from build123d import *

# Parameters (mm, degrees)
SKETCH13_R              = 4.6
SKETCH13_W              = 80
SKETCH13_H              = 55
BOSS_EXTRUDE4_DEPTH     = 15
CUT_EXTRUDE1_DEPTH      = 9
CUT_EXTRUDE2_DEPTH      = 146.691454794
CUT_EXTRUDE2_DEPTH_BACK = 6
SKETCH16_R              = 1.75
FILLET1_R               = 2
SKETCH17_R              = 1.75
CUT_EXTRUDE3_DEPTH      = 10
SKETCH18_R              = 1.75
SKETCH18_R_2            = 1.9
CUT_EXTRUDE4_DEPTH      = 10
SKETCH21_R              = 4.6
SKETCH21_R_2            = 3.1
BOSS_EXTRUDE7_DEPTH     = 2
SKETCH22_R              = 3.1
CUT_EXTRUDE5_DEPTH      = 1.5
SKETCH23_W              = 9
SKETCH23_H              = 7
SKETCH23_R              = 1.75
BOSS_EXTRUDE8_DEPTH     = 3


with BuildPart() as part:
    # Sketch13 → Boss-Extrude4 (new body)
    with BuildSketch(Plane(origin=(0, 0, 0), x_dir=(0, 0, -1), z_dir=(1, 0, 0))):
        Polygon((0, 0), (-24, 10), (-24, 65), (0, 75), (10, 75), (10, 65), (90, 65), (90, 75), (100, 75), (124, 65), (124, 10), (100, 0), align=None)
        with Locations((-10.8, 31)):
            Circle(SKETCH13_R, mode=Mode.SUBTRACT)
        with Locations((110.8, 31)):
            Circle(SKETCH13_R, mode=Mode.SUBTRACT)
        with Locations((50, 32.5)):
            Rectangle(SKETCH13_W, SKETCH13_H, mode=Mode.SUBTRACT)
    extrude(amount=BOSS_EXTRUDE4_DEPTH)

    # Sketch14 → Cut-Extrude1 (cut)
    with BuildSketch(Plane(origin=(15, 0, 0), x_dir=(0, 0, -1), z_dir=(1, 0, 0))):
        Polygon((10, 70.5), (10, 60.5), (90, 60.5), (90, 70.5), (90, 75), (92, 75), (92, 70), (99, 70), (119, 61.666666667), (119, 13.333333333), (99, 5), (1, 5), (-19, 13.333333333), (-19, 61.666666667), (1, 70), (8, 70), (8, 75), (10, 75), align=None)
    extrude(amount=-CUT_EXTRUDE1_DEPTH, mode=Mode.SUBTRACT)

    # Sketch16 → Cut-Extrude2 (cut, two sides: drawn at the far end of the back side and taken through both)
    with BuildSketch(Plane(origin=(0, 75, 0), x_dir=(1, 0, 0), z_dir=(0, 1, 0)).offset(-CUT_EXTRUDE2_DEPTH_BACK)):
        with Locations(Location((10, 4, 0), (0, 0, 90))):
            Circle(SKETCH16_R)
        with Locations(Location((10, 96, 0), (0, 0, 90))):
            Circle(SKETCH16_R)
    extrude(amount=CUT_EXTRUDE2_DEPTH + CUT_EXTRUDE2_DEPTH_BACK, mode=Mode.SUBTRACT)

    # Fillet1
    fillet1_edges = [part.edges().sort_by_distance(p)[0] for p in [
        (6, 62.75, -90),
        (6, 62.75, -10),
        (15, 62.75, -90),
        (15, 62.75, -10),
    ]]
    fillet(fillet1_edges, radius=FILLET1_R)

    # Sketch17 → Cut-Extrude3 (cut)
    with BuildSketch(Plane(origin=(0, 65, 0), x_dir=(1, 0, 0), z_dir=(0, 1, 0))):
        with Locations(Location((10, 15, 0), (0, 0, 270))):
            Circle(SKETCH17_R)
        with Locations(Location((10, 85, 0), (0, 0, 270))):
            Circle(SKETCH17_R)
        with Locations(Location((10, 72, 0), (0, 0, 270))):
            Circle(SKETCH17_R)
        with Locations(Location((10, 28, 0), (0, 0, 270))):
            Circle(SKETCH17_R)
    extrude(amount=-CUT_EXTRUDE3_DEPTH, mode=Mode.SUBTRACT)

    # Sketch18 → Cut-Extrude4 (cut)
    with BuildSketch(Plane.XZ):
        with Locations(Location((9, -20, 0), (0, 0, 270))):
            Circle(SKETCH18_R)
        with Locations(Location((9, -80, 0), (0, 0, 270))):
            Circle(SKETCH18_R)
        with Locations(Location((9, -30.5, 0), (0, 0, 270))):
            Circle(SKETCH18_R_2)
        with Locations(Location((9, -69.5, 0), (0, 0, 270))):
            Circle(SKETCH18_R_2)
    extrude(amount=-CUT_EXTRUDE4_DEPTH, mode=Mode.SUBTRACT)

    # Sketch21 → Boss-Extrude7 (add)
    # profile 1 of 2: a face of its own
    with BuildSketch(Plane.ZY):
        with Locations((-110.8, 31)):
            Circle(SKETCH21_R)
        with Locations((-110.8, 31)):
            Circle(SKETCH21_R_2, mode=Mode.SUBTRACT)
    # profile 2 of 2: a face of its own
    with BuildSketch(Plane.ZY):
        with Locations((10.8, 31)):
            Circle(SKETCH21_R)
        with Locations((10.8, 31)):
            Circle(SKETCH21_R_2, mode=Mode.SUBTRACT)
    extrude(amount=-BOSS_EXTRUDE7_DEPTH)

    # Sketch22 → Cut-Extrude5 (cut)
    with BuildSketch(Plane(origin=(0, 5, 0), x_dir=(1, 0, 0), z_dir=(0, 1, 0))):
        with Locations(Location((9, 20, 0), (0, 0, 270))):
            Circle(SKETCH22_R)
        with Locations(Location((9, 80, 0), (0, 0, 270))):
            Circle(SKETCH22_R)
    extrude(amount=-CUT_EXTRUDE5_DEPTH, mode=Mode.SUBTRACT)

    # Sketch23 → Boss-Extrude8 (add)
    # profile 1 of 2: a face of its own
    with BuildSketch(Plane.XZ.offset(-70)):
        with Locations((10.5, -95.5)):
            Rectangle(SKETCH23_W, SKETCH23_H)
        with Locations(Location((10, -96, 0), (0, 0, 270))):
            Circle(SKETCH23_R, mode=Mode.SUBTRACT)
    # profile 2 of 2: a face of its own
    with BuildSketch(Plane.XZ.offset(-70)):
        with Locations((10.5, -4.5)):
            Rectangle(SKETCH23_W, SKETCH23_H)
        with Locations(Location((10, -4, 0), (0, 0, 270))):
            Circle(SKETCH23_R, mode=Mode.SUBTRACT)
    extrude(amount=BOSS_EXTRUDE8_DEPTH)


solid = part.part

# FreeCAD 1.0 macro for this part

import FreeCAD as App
import Part
import Sketcher
from FreeCAD import Vector


def edges_at(feature, points):
    """Names of the edges that pass closest to the given points."""
    edges = feature.Shape.Edges
    near = lambda p: min(range(len(edges)), key=lambda i: edges[i].distToShape(Part.Vertex(*p))[0])
    return sorted({f"Edge{near(p) + 1}" for p in points})

doc = App.newDocument("Part")
body = doc.addObject("PartDesign::Body", "Body")

sketch1 = doc.addObject("Sketcher::SketchObject", "Sketch")
body.addObject(sketch1)
sketch1.AttachmentSupport = (doc.YZ_Plane, [""])
sketch1.MapMode = "FlatFace"
sketch1.addGeometry([
    Part.LineSegment(Vector(10, 24, 0), Vector(0, 0, 0)),
    Part.LineSegment(Vector(0, 0, 0), Vector(0, -100, 0)),
    Part.LineSegment(Vector(0, -100, 0), Vector(10, -124, 0)),
    Part.LineSegment(Vector(10, -124, 0), Vector(65, -124, 0)),
    Part.LineSegment(Vector(65, -124, 0), Vector(75, -100, 0)),
    Part.LineSegment(Vector(75, -100, 0), Vector(75, -90, 0)),
    Part.LineSegment(Vector(75, -90, 0), Vector(65, -90, 0)),
    Part.LineSegment(Vector(65, -90, 0), Vector(65, -10, 0)),
    Part.LineSegment(Vector(65, -10, 0), Vector(75, -10, 0)),
    Part.LineSegment(Vector(75, -10, 0), Vector(75, 0, 0)),
    Part.LineSegment(Vector(75, 0, 0), Vector(65, 24, 0)),
    Part.LineSegment(Vector(65, 24, 0), Vector(10, 24, 0)),
    Part.Circle(Vector(31, -110.8, 0), Vector(0, 0, 1), 4.6),
    Part.Circle(Vector(31, 10.8, 0), Vector(0, 0, 1), 4.6),
    Part.LineSegment(Vector(5, -10, 0), Vector(60, -10, 0)),
    Part.LineSegment(Vector(60, -10, 0), Vector(60, -90, 0)),
    Part.LineSegment(Vector(60, -90, 0), Vector(5, -90, 0)),
    Part.LineSegment(Vector(5, -90, 0), Vector(5, -10, 0)),
], False)
sketch1.addConstraint([
    Sketcher.Constraint("Coincident", 0, 2, 1, 1),
    Sketcher.Constraint("Coincident", 1, 2, 2, 1),
    Sketcher.Constraint("Coincident", 2, 2, 3, 1),
    Sketcher.Constraint("Coincident", 3, 2, 4, 1),
    Sketcher.Constraint("Coincident", 4, 2, 5, 1),
    Sketcher.Constraint("Coincident", 5, 2, 6, 1),
    Sketcher.Constraint("Coincident", 6, 2, 7, 1),
    Sketcher.Constraint("Coincident", 7, 2, 8, 1),
    Sketcher.Constraint("Coincident", 8, 2, 9, 1),
    Sketcher.Constraint("Coincident", 9, 2, 10, 1),
    Sketcher.Constraint("Coincident", 10, 2, 11, 1),
    Sketcher.Constraint("Coincident", 11, 2, 0, 1),
    Sketcher.Constraint("Coincident", 14, 2, 15, 1),
    Sketcher.Constraint("Coincident", 15, 2, 16, 1),
    Sketcher.Constraint("Coincident", 16, 2, 17, 1),
    Sketcher.Constraint("Coincident", 17, 2, 14, 1),
    Sketcher.Constraint("Vertical", 1),
    Sketcher.Constraint("Horizontal", 3),
    Sketcher.Constraint("Vertical", 5),
    Sketcher.Constraint("Horizontal", 6),
    Sketcher.Constraint("Vertical", 7),
    Sketcher.Constraint("Horizontal", 8),
    Sketcher.Constraint("Vertical", 9),
    Sketcher.Constraint("Horizontal", 11),
    Sketcher.Constraint("Horizontal", 14),
    Sketcher.Constraint("Vertical", 15),
    Sketcher.Constraint("Horizontal", 16),
    Sketcher.Constraint("Vertical", 17),
    Sketcher.Constraint("Coincident", 0, 2, -1, 1),
    Sketcher.Constraint("Equal", 12, 13),
    Sketcher.Constraint("PointOnObject", 9, 2, -1),
    Sketcher.Constraint("Parallel", 0, 4),
    Sketcher.Constraint("Parallel", 2, 10),
    Sketcher.Constraint("Horizontal", 1, 2, 4, 2),
    Sketcher.Constraint("Horizontal", 8, 2, 14, 2),
    Sketcher.Constraint("Horizontal", 6, 2, 15, 2),
    Sketcher.Constraint("Vertical", 12, 3, 13, 3),
    Sketcher.Constraint("Vertical", 3, 2, 6, 2),
    Sketcher.Constraint("Vertical", 5, 2, 8, 2),
    Sketcher.Constraint("Vertical", 7, 2, 10, 2),
    Sketcher.Constraint("Vertical", 2, 2, 11, 2),
    Sketcher.Constraint("Equal", 11, 14),
    Sketcher.Constraint("Equal", 8, 5),
    Sketcher.Constraint("Equal", 5, 9),
    Sketcher.Constraint("Diameter", 12, 9.2),
    Sketcher.Constraint("DistanceX", 3, 1, 3, 2, 55.0),
    Sketcher.Constraint("DistanceX", 6, 2, 6, 1, 10.0),
    Sketcher.Constraint("DistanceY", 1, 2, 1, 1, 100.0),
    Sketcher.Constraint("Distance", 0, 26.0),
    Sketcher.Constraint("DistanceX", -1, 1, 12, 3, 31.0),
    Sketcher.Constraint("DistanceX", -1, 1, 14, 2, 60.0),
    Sketcher.Constraint("DistanceY", 12, 3, -1, 1, 110.8),
    Sketcher.Constraint("DistanceY", -1, 1, 13, 3, 10.8),
])
pad1 = doc.addObject("PartDesign::Pad", "Pad")
body.addObject(pad1)
pad1.Profile = sketch1
pad1.Length = 15

sketch2 = doc.addObject("Sketcher::SketchObject", "Sketch001")
body.addObject(sketch2)
sketch2.AttachmentSupport = (doc.YZ_Plane, [""])
sketch2.MapMode = "FlatFace"
sketch2.AttachmentOffset = App.Placement(Vector(0, 0, 15), App.Rotation())
sketch2.addGeometry([
    Part.LineSegment(Vector(60.5, -10, 0), Vector(75, -10, 0)),
    Part.LineSegment(Vector(75, -10, 0), Vector(75, -8, 0)),
    Part.LineSegment(Vector(75, -8, 0), Vector(70, -8, 0)),
    Part.LineSegment(Vector(70, -8, 0), Vector(70, -1, 0)),
    Part.LineSegment(Vector(70, -1, 0), Vector(61.7, 19, 0)),
    Part.LineSegment(Vector(61.7, 19, 0), Vector(13.3, 19, 0)),
    Part.LineSegment(Vector(13.3, 19, 0), Vector(5, -1, 0)),
    Part.LineSegment(Vector(5, -1, 0), Vector(5, -99, 0)),
    Part.LineSegment(Vector(5, -99, 0), Vector(13.3, -119, 0)),
    Part.LineSegment(Vector(13.3, -119, 0), Vector(61.7, -119, 0)),
    Part.LineSegment(Vector(61.7, -119, 0), Vector(70, -99, 0)),
    Part.LineSegment(Vector(70, -99, 0), Vector(70, -92, 0)),
    Part.LineSegment(Vector(70, -92, 0), Vector(75, -92, 0)),
    Part.LineSegment(Vector(75, -92, 0), Vector(75, -90, 0)),
    Part.LineSegment(Vector(75, -90, 0), Vector(60.5, -90, 0)),
    Part.LineSegment(Vector(60.5, -90, 0), Vector(60.5, -10, 0)),
], False)
sketch2.addConstraint([
    Sketcher.Constraint("Coincident", 0, 2, 1, 1),
    Sketcher.Constraint("Coincident", 1, 2, 2, 1),
    Sketcher.Constraint("Coincident", 2, 2, 3, 1),
    Sketcher.Constraint("Coincident", 3, 2, 4, 1),
    Sketcher.Constraint("Coincident", 4, 2, 5, 1),
    Sketcher.Constraint("Coincident", 5, 2, 6, 1),
    Sketcher.Constraint("Coincident", 6, 2, 7, 1),
    Sketcher.Constraint("Coincident", 7, 2, 8, 1),
    Sketcher.Constraint("Coincident", 8, 2, 9, 1),
    Sketcher.Constraint("Coincident", 9, 2, 10, 1),
    Sketcher.Constraint("Coincident", 10, 2, 11, 1),
    Sketcher.Constraint("Coincident", 11, 2, 12, 1),
    Sketcher.Constraint("Coincident", 12, 2, 13, 1),
    Sketcher.Constraint("Coincident", 13, 2, 14, 1),
    Sketcher.Constraint("Coincident", 14, 2, 15, 1),
    Sketcher.Constraint("Coincident", 15, 2, 0, 1),
    Sketcher.Constraint("Horizontal", 0),
    Sketcher.Constraint("Vertical", 1),
    Sketcher.Constraint("Horizontal", 2),
    Sketcher.Constraint("Vertical", 3),
    Sketcher.Constraint("Horizontal", 5),
    Sketcher.Constraint("Vertical", 7),
    Sketcher.Constraint("Horizontal", 9),
    Sketcher.Constraint("Vertical", 11),
    Sketcher.Constraint("Horizontal", 12),
    Sketcher.Constraint("Vertical", 13),
    Sketcher.Constraint("Horizontal", 14),
    Sketcher.Constraint("Vertical", 15),
    Sketcher.Constraint("Parallel", 4, 8),
    Sketcher.Constraint("Parallel", 6, 10),
    Sketcher.Constraint("Horizontal", 3, 2, 6, 2),
    Sketcher.Constraint("Horizontal", 7, 2, 10, 2),
    Sketcher.Constraint("Vertical", 5, 2, 8, 2),
    Sketcher.Constraint("Vertical", 4, 2, 9, 2),
    Sketcher.Constraint("Vertical", 3, 2, 10, 2),
    Sketcher.Constraint("Vertical", 1, 2, 12, 2),
    Sketcher.Constraint("Equal", 3, 11),
    Sketcher.Constraint("Equal", 1, 13),
    Sketcher.Constraint("DistanceX", 2, 2, 2, 1, 5.0),
    Sketcher.Constraint("DistanceY", 1, 1, 1, 2, 2.0),
    Sketcher.Constraint("DistanceY", 3, 1, 3, 2, 7.0),
    Sketcher.Constraint("DistanceY", 7, 2, 7, 1, 98.0),
    Sketcher.Constraint("DistanceX", 0, 1, 0, 2, 14.5),
    Sketcher.Constraint("DistanceX", -1, 1, 0, 2, 75.0),
    Sketcher.Constraint("DistanceY", 0, 2, -1, 1, 10.0),
    Sketcher.Constraint("DistanceY", -1, 1, 4, 2, 19.0),
    Sketcher.Constraint("DistanceX", -1, 1, 6, 2, 5.0),
    Sketcher.Constraint("DistanceX", 5, 2, 5, 1, 48.333333),
])
pocket1 = doc.addObject("PartDesign::Pocket", "Pocket")
body.addObject(pocket1)
pocket1.Profile = sketch2
pocket1.Length = 9

sketch3 = doc.addObject("Sketcher::SketchObject", "Sketch002")
body.addObject(sketch3)
sketch3.AttachmentSupport = (doc.XZ_Plane, [""])
sketch3.MapMode = "FlatFace"
sketch3.AttachmentOffset = App.Placement(Vector(0, 0, -75), App.Rotation())
sketch3.addGeometry([
    Part.Circle(Vector(10, -4, 0), Vector(0, 0, 1), 1.8),
    Part.Circle(Vector(10, -96, 0), Vector(0, 0, 1), 1.8),
], False)
sketch3.addConstraint([
    Sketcher.Constraint("Equal", 0, 1),
    Sketcher.Constraint("Vertical", 0, 3, 1, 3),
    Sketcher.Constraint("Diameter", 0, 3.5),
    Sketcher.Constraint("DistanceX", -1, 1, 0, 3, 10.0),
    Sketcher.Constraint("DistanceY", 0, 3, -1, 1, 4.0),
    Sketcher.Constraint("DistanceY", 1, 3, -1, 1, 96.0),
])
pocket2 = doc.addObject("PartDesign::Pocket", "Pocket001")
body.addObject(pocket2)
pocket2.Profile = sketch3
pocket2.Type = "TwoLengths"
pocket2.Length = 146.691455
pocket2.Length2 = 6
doc.recompute()

fillet = doc.addObject("PartDesign::Fillet", "Fillet")
body.addObject(fillet)
fillet.Base = (pocket2, edges_at(pocket2, [
    (6, 62.75, -90),
    (6, 62.75, -10),
    (15, 62.75, -90),
    (15, 62.75, -10),
]))
fillet.Radius = 2

sketch4 = doc.addObject("Sketcher::SketchObject", "Sketch003")
body.addObject(sketch4)
sketch4.AttachmentSupport = (doc.XZ_Plane, [""])
sketch4.MapMode = "FlatFace"
sketch4.AttachmentOffset = App.Placement(Vector(0, 0, -65), App.Rotation())
sketch4.addGeometry([
    Part.Circle(Vector(10, -15, 0), Vector(0, 0, 1), 1.8),
    Part.Circle(Vector(10, -85, 0), Vector(0, 0, 1), 1.8),
    Part.Circle(Vector(10, -72, 0), Vector(0, 0, 1), 1.8),
    Part.Circle(Vector(10, -28, 0), Vector(0, 0, 1), 1.8),
], False)
sketch4.addConstraint([
    Sketcher.Constraint("Equal", 0, 1),
    Sketcher.Constraint("Equal", 1, 2),
    Sketcher.Constraint("Equal", 2, 3),
    Sketcher.Constraint("Vertical", 0, 3, 1, 3),
    Sketcher.Constraint("Vertical", 1, 3, 2, 3),
    Sketcher.Constraint("Vertical", 2, 3, 3, 3),
    Sketcher.Constraint("Diameter", 0, 3.5),
    Sketcher.Constraint("DistanceX", -1, 1, 0, 3, 10.0),
    Sketcher.Constraint("DistanceY", 0, 3, -1, 1, 15.0),
    Sketcher.Constraint("DistanceY", 1, 3, -1, 1, 85.0),
    Sketcher.Constraint("DistanceY", 2, 3, -1, 1, 72.0),
    Sketcher.Constraint("DistanceY", 3, 3, -1, 1, 28.0),
])
pocket3 = doc.addObject("PartDesign::Pocket", "Pocket002")
body.addObject(pocket3)
pocket3.Profile = sketch4
pocket3.Length = 10
pocket3.Reversed = True

sketch5 = doc.addObject("Sketcher::SketchObject", "Sketch004")
body.addObject(sketch5)
sketch5.AttachmentSupport = (doc.XZ_Plane, [""])
sketch5.MapMode = "FlatFace"
sketch5.addGeometry([
    Part.Circle(Vector(9, -20, 0), Vector(0, 0, 1), 1.8),
    Part.Circle(Vector(9, -80, 0), Vector(0, 0, 1), 1.8),
    Part.Circle(Vector(9, -30.5, 0), Vector(0, 0, 1), 1.9),
    Part.Circle(Vector(9, -69.5, 0), Vector(0, 0, 1), 1.9),
], False)
sketch5.addConstraint([
    Sketcher.Constraint("Equal", 0, 1),
    Sketcher.Constraint("Equal", 2, 3),
    Sketcher.Constraint("Vertical", 0, 3, 1, 3),
    Sketcher.Constraint("Vertical", 1, 3, 2, 3),
    Sketcher.Constraint("Vertical", 2, 3, 3, 3),
    Sketcher.Constraint("Diameter", 0, 3.5),
    Sketcher.Constraint("Diameter", 2, 3.8),
    Sketcher.Constraint("DistanceX", -1, 1, 0, 3, 9.0),
    Sketcher.Constraint("DistanceY", 0, 3, -1, 1, 20.0),
    Sketcher.Constraint("DistanceY", 1, 3, -1, 1, 80.0),
    Sketcher.Constraint("DistanceY", 3, 3, 2, 3, 39.0),
    Sketcher.Constraint("DistanceY", 2, 3, -1, 1, 30.5),
])
pocket4 = doc.addObject("PartDesign::Pocket", "Pocket003")
body.addObject(pocket4)
pocket4.Profile = sketch5
pocket4.Length = 10

sketch6 = doc.addObject("Sketcher::SketchObject", "Sketch005")
body.addObject(sketch6)
sketch6.AttachmentSupport = (doc.YZ_Plane, [""])
sketch6.MapMode = "FlatFace"
sketch6.addGeometry([
    Part.Circle(Vector(31, -110.8, 0), Vector(0, 0, 1), 4.6),
    Part.Circle(Vector(31, -110.8, 0), Vector(0, 0, 1), 3.1),
    Part.Circle(Vector(31, 10.8, 0), Vector(0, 0, 1), 4.6),
    Part.Circle(Vector(31, 10.8, 0), Vector(0, 0, 1), 3.1),
], False)
sketch6.addConstraint([
    Sketcher.Constraint("Coincident", 1, 3, 0, 3),
    Sketcher.Constraint("Coincident", 3, 3, 2, 3),
    Sketcher.Constraint("Equal", 0, 2),
    Sketcher.Constraint("Equal", 1, 3),
    Sketcher.Constraint("Vertical", 1, 3, 2, 3),
    Sketcher.Constraint("Diameter", 0, 9.2),
    Sketcher.Constraint("Diameter", 1, 6.2),
    Sketcher.Constraint("DistanceX", -1, 1, 0, 3, 31.0),
    Sketcher.Constraint("DistanceY", 0, 3, -1, 1, 110.8),
    Sketcher.Constraint("DistanceY", -1, 1, 2, 3, 10.8),
])
pad2 = doc.addObject("PartDesign::Pad", "Pad001")
body.addObject(pad2)
pad2.Profile = sketch6
pad2.Length = 2

sketch7 = doc.addObject("Sketcher::SketchObject", "Sketch006")
body.addObject(sketch7)
sketch7.AttachmentSupport = (doc.XZ_Plane, [""])
sketch7.MapMode = "FlatFace"
sketch7.AttachmentOffset = App.Placement(Vector(0, 0, -5), App.Rotation())
sketch7.addGeometry([
    Part.Circle(Vector(9, -20, 0), Vector(0, 0, 1), 3.1),
    Part.Circle(Vector(9, -80, 0), Vector(0, 0, 1), 3.1),
], False)
sketch7.addConstraint([
    Sketcher.Constraint("Equal", 0, 1),
    Sketcher.Constraint("Vertical", 0, 3, 1, 3),
    Sketcher.Constraint("Diameter", 0, 6.2),
    Sketcher.Constraint("DistanceX", -1, 1, 0, 3, 9.0),
    Sketcher.Constraint("DistanceY", 0, 3, -1, 1, 20.0),
    Sketcher.Constraint("DistanceY", 1, 3, -1, 1, 80.0),
])
pocket5 = doc.addObject("PartDesign::Pocket", "Pocket004")
body.addObject(pocket5)
pocket5.Profile = sketch7
pocket5.Length = 1.5
pocket5.Reversed = True

sketch8 = doc.addObject("Sketcher::SketchObject", "Sketch007")
body.addObject(sketch8)
sketch8.AttachmentSupport = (doc.XZ_Plane, [""])
sketch8.MapMode = "FlatFace"
sketch8.AttachmentOffset = App.Placement(Vector(0, 0, -70), App.Rotation())
sketch8.addGeometry([
    Part.LineSegment(Vector(6, -92, 0), Vector(6, -99, 0)),
    Part.LineSegment(Vector(6, -99, 0), Vector(15, -99, 0)),
    Part.LineSegment(Vector(15, -99, 0), Vector(15, -92, 0)),
    Part.LineSegment(Vector(15, -92, 0), Vector(6, -92, 0)),
    Part.Circle(Vector(10, -96, 0), Vector(0, 0, 1), 1.8),
    Part.LineSegment(Vector(6, -1, 0), Vector(6, -8, 0)),
    Part.LineSegment(Vector(6, -8, 0), Vector(15, -8, 0)),
    Part.LineSegment(Vector(15, -8, 0), Vector(15, -1, 0)),
    Part.LineSegment(Vector(15, -1, 0), Vector(6, -1, 0)),
    Part.Circle(Vector(10, -4, 0), Vector(0, 0, 1), 1.8),
], False)
sketch8.addConstraint([
    Sketcher.Constraint("Coincident", 0, 2, 1, 1),
    Sketcher.Constraint("Coincident", 1, 2, 2, 1),
    Sketcher.Constraint("Coincident", 2, 2, 3, 1),
    Sketcher.Constraint("Coincident", 3, 2, 0, 1),
    Sketcher.Constraint("Coincident", 5, 2, 6, 1),
    Sketcher.Constraint("Coincident", 6, 2, 7, 1),
    Sketcher.Constraint("Coincident", 7, 2, 8, 1),
    Sketcher.Constraint("Coincident", 8, 2, 5, 1),
    Sketcher.Constraint("Vertical", 0),
    Sketcher.Constraint("Horizontal", 1),
    Sketcher.Constraint("Vertical", 2),
    Sketcher.Constraint("Horizontal", 3),
    Sketcher.Constraint("Vertical", 5),
    Sketcher.Constraint("Horizontal", 6),
    Sketcher.Constraint("Vertical", 7),
    Sketcher.Constraint("Horizontal", 8),
    Sketcher.Constraint("Equal", 4, 9),
    Sketcher.Constraint("Vertical", 4, 3, 9, 3),
    Sketcher.Constraint("Vertical", 3, 2, 5, 2),
    Sketcher.Constraint("Vertical", 2, 2, 6, 2),
    Sketcher.Constraint("Equal", 2, 5),
    Sketcher.Constraint("Diameter", 4, 3.5),
    Sketcher.Constraint("DistanceX", 1, 1, 1, 2, 9.0),
    Sketcher.Constraint("DistanceY", 0, 2, 0, 1, 7.0),
    Sketcher.Constraint("DistanceX", -1, 1, 4, 3, 10.0),
    Sketcher.Constraint("DistanceY", 4, 3, -1, 1, 96.0),
    Sketcher.Constraint("DistanceY", 9, 3, -1, 1, 4.0),
    Sketcher.Constraint("DistanceX", -1, 1, 0, 2, 6.0),
    Sketcher.Constraint("DistanceY", 0, 2, -1, 1, 99.0),
    Sketcher.Constraint("DistanceY", 5, 2, -1, 1, 8.0),
])
pad3 = doc.addObject("PartDesign::Pad", "Pad002")
body.addObject(pad3)
pad3.Profile = sketch8
pad3.Length = 3

doc.recompute()
